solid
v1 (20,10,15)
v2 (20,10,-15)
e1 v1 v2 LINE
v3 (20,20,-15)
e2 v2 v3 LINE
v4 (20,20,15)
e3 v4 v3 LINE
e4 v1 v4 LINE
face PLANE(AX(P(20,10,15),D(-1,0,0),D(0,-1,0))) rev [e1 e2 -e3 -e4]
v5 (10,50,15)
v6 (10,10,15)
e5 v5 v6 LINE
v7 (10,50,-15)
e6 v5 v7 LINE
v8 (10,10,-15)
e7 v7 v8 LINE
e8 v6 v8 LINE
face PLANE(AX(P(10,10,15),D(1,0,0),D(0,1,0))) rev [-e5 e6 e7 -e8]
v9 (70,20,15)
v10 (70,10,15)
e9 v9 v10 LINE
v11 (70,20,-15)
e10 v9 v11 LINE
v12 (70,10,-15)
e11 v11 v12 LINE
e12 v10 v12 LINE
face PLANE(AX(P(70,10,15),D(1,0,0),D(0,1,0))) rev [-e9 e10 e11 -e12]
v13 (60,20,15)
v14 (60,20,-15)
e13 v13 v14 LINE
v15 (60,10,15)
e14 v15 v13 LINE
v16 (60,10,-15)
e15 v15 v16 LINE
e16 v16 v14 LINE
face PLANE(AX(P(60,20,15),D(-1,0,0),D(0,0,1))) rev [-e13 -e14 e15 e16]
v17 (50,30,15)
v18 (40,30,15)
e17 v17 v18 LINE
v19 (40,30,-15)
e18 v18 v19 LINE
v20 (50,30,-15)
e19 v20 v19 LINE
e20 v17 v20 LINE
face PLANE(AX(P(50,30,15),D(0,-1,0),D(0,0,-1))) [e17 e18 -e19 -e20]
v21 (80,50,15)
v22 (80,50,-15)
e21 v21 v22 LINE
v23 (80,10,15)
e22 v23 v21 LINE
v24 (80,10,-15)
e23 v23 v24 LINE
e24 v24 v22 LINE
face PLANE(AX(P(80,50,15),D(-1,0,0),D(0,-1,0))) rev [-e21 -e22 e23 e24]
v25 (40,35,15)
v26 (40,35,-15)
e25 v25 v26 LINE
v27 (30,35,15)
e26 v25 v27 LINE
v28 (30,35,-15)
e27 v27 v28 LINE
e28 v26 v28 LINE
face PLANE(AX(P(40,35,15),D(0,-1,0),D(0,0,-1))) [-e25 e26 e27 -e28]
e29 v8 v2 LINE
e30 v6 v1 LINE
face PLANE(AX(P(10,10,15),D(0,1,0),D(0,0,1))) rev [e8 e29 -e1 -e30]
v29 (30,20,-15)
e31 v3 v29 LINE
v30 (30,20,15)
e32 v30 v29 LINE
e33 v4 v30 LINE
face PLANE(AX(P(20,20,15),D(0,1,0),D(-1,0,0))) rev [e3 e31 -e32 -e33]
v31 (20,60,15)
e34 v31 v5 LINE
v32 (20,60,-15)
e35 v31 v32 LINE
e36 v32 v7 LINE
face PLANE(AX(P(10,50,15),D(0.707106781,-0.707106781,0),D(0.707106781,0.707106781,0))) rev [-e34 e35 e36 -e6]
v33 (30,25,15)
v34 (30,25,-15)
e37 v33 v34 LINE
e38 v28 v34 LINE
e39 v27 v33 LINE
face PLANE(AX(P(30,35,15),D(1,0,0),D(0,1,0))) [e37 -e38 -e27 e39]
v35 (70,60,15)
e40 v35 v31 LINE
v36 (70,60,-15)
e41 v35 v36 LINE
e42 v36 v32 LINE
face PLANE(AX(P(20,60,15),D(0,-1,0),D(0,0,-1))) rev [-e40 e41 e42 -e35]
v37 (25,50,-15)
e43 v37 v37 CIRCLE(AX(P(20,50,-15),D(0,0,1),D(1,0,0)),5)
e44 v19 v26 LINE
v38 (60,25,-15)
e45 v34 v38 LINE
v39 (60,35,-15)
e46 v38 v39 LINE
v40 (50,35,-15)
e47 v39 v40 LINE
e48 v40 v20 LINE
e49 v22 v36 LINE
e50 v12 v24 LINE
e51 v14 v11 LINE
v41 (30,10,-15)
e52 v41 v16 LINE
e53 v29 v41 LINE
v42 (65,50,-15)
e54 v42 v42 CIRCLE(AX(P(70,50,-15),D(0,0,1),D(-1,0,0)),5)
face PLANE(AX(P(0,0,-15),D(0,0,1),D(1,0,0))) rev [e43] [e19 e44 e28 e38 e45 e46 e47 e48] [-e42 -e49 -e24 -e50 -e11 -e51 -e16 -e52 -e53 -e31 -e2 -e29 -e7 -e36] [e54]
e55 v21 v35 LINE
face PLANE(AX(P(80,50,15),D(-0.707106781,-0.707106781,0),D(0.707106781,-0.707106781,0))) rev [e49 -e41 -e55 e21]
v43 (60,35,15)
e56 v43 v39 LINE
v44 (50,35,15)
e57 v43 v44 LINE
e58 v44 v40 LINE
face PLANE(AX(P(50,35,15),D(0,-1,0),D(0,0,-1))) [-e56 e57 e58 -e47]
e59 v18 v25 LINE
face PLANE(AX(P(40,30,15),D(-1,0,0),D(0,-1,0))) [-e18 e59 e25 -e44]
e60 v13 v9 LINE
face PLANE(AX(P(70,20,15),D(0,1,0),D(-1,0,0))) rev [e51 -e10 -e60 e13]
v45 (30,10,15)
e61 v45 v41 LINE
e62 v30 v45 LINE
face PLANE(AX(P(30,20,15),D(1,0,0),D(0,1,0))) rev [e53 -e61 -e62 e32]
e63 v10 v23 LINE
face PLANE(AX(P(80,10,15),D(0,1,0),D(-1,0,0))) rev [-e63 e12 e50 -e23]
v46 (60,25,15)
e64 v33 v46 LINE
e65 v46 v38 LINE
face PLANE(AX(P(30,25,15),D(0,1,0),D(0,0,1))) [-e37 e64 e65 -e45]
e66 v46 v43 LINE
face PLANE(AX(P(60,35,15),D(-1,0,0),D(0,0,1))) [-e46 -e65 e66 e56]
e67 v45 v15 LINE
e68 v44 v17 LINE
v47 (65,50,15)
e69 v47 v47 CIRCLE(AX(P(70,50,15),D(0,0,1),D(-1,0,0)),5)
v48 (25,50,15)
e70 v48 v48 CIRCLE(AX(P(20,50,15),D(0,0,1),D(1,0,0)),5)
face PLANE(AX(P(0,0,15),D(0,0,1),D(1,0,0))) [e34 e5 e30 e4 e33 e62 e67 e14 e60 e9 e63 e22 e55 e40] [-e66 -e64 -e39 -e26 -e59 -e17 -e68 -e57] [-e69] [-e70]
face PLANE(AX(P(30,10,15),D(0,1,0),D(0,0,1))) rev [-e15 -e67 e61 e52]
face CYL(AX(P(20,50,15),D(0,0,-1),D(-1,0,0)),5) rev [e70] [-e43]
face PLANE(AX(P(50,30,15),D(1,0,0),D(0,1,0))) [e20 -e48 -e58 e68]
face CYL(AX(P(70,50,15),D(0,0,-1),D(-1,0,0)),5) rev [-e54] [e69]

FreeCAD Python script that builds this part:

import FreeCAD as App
import Part
import Sketcher

V = App.Vector

doc = App.newDocument("Part")
params = doc.addObject("Spreadsheet::Sheet", "Params")
for row, (alias, value) in enumerate([
    ("sketch1_diameter", "10 mm"),
    ("sketch1_width", "10 mm"),
    ("sketch1_height", "40 mm"),
    ("sketch1_height2", "5 mm"),
    ("pad1_length", "30 mm"),
], start=1):
    params.set(f"A{row}", alias)
    params.set(f"B{row}", "=" + value)
    params.setAlias(f"B{row}", alias)

body = doc.addObject("PartDesign::Body", "Body")

# Sketch on XY plane
sketch1 = doc.addObject("Sketcher::SketchObject", "Sketch")
body.addObject(sketch1)
sketch1.AttachmentSupport = (doc.XY_Plane, [""])
sketch1.MapMode = "FlatFace"
sketch1.addGeometry(Part.LineSegment(V(10, 50, 0), V(10, 10, 0)), False)
sketch1.addGeometry(Part.LineSegment(V(10, 10, 0), V(20, 10, 0)), False)
sketch1.addGeometry(Part.LineSegment(V(20, 10, 0), V(20, 20, 0)), False)
sketch1.addGeometry(Part.LineSegment(V(20, 20, 0), V(30, 20, 0)), False)
sketch1.addGeometry(Part.LineSegment(V(30, 20, 0), V(30, 10, 0)), False)
sketch1.addGeometry(Part.LineSegment(V(30, 10, 0), V(60, 10, 0)), False)
sketch1.addGeometry(Part.LineSegment(V(60, 10, 0), V(60, 20, 0)), False)
sketch1.addGeometry(Part.LineSegment(V(60, 20, 0), V(70, 20, 0)), False)
sketch1.addGeometry(Part.LineSegment(V(70, 20, 0), V(70, 10, 0)), False)
sketch1.addGeometry(Part.LineSegment(V(70, 10, 0), V(80, 10, 0)), False)
sketch1.addGeometry(Part.LineSegment(V(80, 10, 0), V(80, 50, 0)), False)
sketch1.addGeometry(Part.LineSegment(V(80, 50, 0), V(70, 60, 0)), False)
sketch1.addGeometry(Part.LineSegment(V(70, 60, 0), V(20, 60, 0)), False)
sketch1.addGeometry(Part.LineSegment(V(20, 60, 0), V(10, 50, 0)), False)
sketch1.addGeometry(Part.LineSegment(V(50, 30, 0), V(50, 35, 0)), False)
sketch1.addGeometry(Part.LineSegment(V(50, 35, 0), V(60, 35, 0)), False)
sketch1.addGeometry(Part.LineSegment(V(60, 35, 0), V(60, 25, 0)), False)
sketch1.addGeometry(Part.LineSegment(V(60, 25, 0), V(30, 25, 0)), False)
sketch1.addGeometry(Part.LineSegment(V(30, 25, 0), V(30, 35, 0)), False)
sketch1.addGeometry(Part.LineSegment(V(30, 35, 0), V(40, 35, 0)), False)
sketch1.addGeometry(Part.LineSegment(V(40, 35, 0), V(40, 30, 0)), False)
sketch1.addGeometry(Part.LineSegment(V(40, 30, 0), V(50, 30, 0)), False)
sketch1.addGeometry(Part.Circle(V(70, 50, 0), V(0, 0, 1), 5), False)
sketch1.addGeometry(Part.Circle(V(20, 50, 0), V(0, 0, 1), 5), False)
sketch1.addConstraint(Sketcher.Constraint("Coincident", 0, 2, 1, 1))
sketch1.addConstraint(Sketcher.Constraint("Coincident", 1, 2, 2, 1))
sketch1.addConstraint(Sketcher.Constraint("Coincident", 2, 2, 3, 1))
sketch1.addConstraint(Sketcher.Constraint("Coincident", 3, 2, 4, 1))
sketch1.addConstraint(Sketcher.Constraint("Coincident", 4, 2, 5, 1))
sketch1.addConstraint(Sketcher.Constraint("Coincident", 5, 2, 6, 1))
sketch1.addConstraint(Sketcher.Constraint("Coincident", 6, 2, 7, 1))
sketch1.addConstraint(Sketcher.Constraint("Coincident", 7, 2, 8, 1))
sketch1.addConstraint(Sketcher.Constraint("Coincident", 8, 2, 9, 1))
sketch1.addConstraint(Sketcher.Constraint("Coincident", 9, 2, 10, 1))
sketch1.addConstraint(Sketcher.Constraint("Coincident", 10, 2, 11, 1))
sketch1.addConstraint(Sketcher.Constraint("Coincident", 11, 2, 12, 1))
sketch1.addConstraint(Sketcher.Constraint("Coincident", 12, 2, 13, 1))
sketch1.addConstraint(Sketcher.Constraint("Coincident", 13, 2, 0, 1))
sketch1.addConstraint(Sketcher.Constraint("Coincident", 14, 2, 15, 1))
sketch1.addConstraint(Sketcher.Constraint("Coincident", 15, 2, 16, 1))
sketch1.addConstraint(Sketcher.Constraint("Coincident", 16, 2, 17, 1))
sketch1.addConstraint(Sketcher.Constraint("Coincident", 17, 2, 18, 1))
sketch1.addConstraint(Sketcher.Constraint("Coincident", 18, 2, 19, 1))
sketch1.addConstraint(Sketcher.Constraint("Coincident", 19, 2, 20, 1))
sketch1.addConstraint(Sketcher.Constraint("Coincident", 20, 2, 21, 1))
sketch1.addConstraint(Sketcher.Constraint("Coincident", 21, 2, 14, 1))
sketch1.addConstraint(Sketcher.Constraint("Vertical", 0))
sketch1.addConstraint(Sketcher.Constraint("Horizontal", 1))
sketch1.addConstraint(Sketcher.Constraint("Vertical", 2))
sketch1.addConstraint(Sketcher.Constraint("Horizontal", 3))
sketch1.addConstraint(Sketcher.Constraint("Vertical", 4))
sketch1.addConstraint(Sketcher.Constraint("Horizontal", 5))
sketch1.addConstraint(Sketcher.Constraint("Vertical", 6))
sketch1.addConstraint(Sketcher.Constraint("Horizontal", 7))
sketch1.addConstraint(Sketcher.Constraint("Vertical", 8))
sketch1.addConstraint(Sketcher.Constraint("Horizontal", 9))
sketch1.addConstraint(Sketcher.Constraint("Vertical", 10))
sketch1.addConstraint(Sketcher.Constraint("Horizontal", 12))
sketch1.addConstraint(Sketcher.Constraint("Vertical", 14))
sketch1.addConstraint(Sketcher.Constraint("Horizontal", 15))
sketch1.addConstraint(Sketcher.Constraint("Vertical", 16))
sketch1.addConstraint(Sketcher.Constraint("Horizontal", 17))
sketch1.addConstraint(Sketcher.Constraint("Vertical", 18))
sketch1.addConstraint(Sketcher.Constraint("Horizontal", 19))
sketch1.addConstraint(Sketcher.Constraint("Vertical", 20))
sketch1.addConstraint(Sketcher.Constraint("Horizontal", 21))
sketch1.addConstraint(Sketcher.Constraint("Equal", 22, 23))
sketch1.addConstraint(Sketcher.Constraint("Perpendicular", 11, 13))
sketch1.addConstraint(Sketcher.Constraint("Horizontal", 22, 3, 23, 3))
sketch1.addConstraint(Sketcher.Constraint("Horizontal", 1, 2, 4, 2))
sketch1.addConstraint(Sketcher.Constraint("Horizontal", 3, 2, 6, 2))
sketch1.addConstraint(Sketcher.Constraint("Horizontal", 5, 2, 8, 2))
sketch1.addConstraint(Sketcher.Constraint("Horizontal", 23, 3, 10, 2))
sketch1.addConstraint(Sketcher.Constraint("Horizontal", 10, 2, 13, 2))
sketch1.addConstraint(Sketcher.Constraint("Horizontal", 15, 2, 18, 2))
sketch1.addConstraint(Sketcher.Constraint("Vertical", 23, 3, 1, 2))
sketch1.addConstraint(Sketcher.Constraint("Vertical", 22, 3, 7, 2))
sketch1.addConstraint(Sketcher.Constraint("Vertical", 8, 2, 11, 2))
sketch1.addConstraint(Sketcher.Constraint("Vertical", 2, 2, 12, 2))
sketch1.addConstraint(Sketcher.Constraint("Vertical", 6, 2, 15, 2))
sketch1.addConstraint(Sketcher.Constraint("Vertical", 4, 2, 17, 2))
sketch1.addConstraint(Sketcher.Constraint("Equal", 1, 3))
sketch1.addConstraint(Sketcher.Constraint("Equal", 3, 7))
sketch1.addConstraint(Sketcher.Constraint("Equal", 7, 9))
sketch1.addConstraint(Sketcher.Constraint("Equal", 9, 15))
sketch1.addConstraint(Sketcher.Constraint("Equal", 15, 19))
sketch1.addConstraint(Sketcher.Constraint("Equal", 19, 21))
sketch1.addConstraint(Sketcher.Constraint("Equal", 21, 2))
sketch1.addConstraint(Sketcher.Constraint("Equal", 8, 16))
sketch1.addConstraint(Sketcher.Constraint("Diameter", 22, 10.0))
sketch1.addConstraint(Sketcher.Constraint("DistanceX", 1, 1, 1, 2, 10.0))
sketch1.addConstraint(Sketcher.Constraint("DistanceY", 0, 2, 0, 1, 40.0))
sketch1.addConstraint(Sketcher.Constraint("DistanceY", 14, 1, 14, 2, 5.0))
sketch1.addConstraint(Sketcher.Constraint("DistanceX", -1, 1, 22, 3, 70.0))
sketch1.addConstraint(Sketcher.Constraint("DistanceY", -1, 1, 22, 3, 50.0))
sketch1.addConstraint(Sketcher.Constraint("DistanceY", -1, 1, 14, 2, 35.0))
sketch1.setExpression("Constraints[65]", "Params.sketch1_diameter")
sketch1.setExpression("Constraints[66]", "Params.sketch1_width")
sketch1.setExpression("Constraints[67]", "Params.sketch1_height")
sketch1.setExpression("Constraints[68]", "Params.sketch1_height2")
pad1 = doc.addObject("PartDesign::Pad", "Pad")
body.addObject(pad1)
pad1.Profile = sketch1
pad1.setExpression("Length", "Params.pad1_length")
pad1.Midplane = True

doc.recompute()
